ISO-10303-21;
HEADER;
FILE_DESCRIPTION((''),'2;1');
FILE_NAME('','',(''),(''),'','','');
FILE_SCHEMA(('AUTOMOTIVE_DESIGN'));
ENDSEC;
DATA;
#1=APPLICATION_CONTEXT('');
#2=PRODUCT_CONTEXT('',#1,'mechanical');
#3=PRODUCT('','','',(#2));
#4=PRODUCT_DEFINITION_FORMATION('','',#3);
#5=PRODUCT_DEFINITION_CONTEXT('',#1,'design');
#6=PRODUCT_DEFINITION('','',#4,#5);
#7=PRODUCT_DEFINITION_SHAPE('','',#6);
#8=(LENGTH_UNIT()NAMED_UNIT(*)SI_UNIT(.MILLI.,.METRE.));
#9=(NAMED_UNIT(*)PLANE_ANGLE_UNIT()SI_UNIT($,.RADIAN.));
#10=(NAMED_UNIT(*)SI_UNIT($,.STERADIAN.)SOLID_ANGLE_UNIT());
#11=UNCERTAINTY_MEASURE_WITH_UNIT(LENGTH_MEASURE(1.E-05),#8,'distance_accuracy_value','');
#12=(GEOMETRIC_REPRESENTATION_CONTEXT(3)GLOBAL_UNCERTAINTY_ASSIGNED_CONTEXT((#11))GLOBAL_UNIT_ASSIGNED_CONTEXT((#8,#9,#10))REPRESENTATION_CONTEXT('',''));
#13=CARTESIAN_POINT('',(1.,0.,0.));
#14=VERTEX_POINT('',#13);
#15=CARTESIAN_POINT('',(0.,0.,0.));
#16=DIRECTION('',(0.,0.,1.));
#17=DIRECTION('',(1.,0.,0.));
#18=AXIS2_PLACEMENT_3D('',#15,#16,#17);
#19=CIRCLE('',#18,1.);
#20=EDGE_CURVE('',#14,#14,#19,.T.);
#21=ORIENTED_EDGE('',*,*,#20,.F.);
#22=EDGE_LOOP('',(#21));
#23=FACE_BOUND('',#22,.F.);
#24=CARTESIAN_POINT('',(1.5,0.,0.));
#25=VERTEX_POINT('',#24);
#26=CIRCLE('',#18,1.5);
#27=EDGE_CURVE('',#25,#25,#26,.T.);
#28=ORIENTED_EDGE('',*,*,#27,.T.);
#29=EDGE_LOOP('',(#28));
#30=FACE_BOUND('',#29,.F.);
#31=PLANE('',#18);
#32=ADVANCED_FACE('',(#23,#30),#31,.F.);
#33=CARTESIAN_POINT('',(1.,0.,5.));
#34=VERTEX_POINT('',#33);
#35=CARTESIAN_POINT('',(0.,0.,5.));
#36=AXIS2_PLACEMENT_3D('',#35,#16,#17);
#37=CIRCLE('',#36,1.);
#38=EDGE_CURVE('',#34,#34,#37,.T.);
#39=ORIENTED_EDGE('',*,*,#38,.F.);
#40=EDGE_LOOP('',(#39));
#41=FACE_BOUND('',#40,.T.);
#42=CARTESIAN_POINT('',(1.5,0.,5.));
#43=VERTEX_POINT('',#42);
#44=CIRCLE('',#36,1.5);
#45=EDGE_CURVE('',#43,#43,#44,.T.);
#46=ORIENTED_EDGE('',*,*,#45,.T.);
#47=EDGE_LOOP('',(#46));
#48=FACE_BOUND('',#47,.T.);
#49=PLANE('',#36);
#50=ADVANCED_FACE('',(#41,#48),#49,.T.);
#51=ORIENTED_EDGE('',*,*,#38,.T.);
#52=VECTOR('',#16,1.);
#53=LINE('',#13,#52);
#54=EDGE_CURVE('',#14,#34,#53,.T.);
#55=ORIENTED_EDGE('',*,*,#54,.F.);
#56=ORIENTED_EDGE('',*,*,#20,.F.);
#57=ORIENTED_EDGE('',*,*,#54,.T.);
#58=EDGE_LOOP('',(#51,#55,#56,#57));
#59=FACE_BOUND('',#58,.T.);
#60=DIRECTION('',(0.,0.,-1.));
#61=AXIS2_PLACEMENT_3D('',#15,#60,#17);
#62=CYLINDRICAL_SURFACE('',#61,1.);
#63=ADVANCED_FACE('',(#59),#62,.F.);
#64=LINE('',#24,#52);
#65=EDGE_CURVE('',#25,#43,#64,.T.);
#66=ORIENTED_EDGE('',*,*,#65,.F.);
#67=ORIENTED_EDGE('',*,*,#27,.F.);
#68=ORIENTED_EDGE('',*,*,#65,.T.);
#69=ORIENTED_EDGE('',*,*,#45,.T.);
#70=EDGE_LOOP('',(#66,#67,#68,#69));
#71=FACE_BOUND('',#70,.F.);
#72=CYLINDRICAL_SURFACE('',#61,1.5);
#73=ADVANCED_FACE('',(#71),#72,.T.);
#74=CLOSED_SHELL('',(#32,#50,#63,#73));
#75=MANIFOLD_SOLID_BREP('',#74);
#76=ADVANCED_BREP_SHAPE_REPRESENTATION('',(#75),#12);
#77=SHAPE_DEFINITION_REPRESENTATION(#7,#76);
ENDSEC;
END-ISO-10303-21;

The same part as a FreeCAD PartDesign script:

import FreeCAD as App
import Part
import Sketcher
from FreeCAD import Vector
Q = App.Units.Quantity

doc = App.newDocument("Part")
body = doc.addObject("PartDesign::Body", "Body")

sketch1 = body.newObject("Sketcher::SketchObject", "Sketch")
sketch1.AttachmentSupport = (doc.getObject("XY_Plane"), [""])
sketch1.MapMode = "FlatFace"
sketch1.addGeometry(Part.Circle(Vector(0, 0, 0), Vector(0, 0, 1), 1.5), False)
sketch1.addGeometry(Part.Circle(Vector(0, 0, 0), Vector(0, 0, 1), 1), False)
sketch1.addConstraint(Sketcher.Constraint("Coincident", 0, 3, -1, 1))
sketch1.addConstraint(Sketcher.Constraint("Coincident", 1, 3, -1, 1))
sketch1.addConstraint(Sketcher.Constraint("Diameter", 0, Q("3 mm")))
sketch1.addConstraint(Sketcher.Constraint("Diameter", 1, Q("2 mm")))
pad1 = body.newObject("PartDesign::Pad", "Pad")
pad1.Profile = sketch1
pad1.Length = 5

doc.recompute()
